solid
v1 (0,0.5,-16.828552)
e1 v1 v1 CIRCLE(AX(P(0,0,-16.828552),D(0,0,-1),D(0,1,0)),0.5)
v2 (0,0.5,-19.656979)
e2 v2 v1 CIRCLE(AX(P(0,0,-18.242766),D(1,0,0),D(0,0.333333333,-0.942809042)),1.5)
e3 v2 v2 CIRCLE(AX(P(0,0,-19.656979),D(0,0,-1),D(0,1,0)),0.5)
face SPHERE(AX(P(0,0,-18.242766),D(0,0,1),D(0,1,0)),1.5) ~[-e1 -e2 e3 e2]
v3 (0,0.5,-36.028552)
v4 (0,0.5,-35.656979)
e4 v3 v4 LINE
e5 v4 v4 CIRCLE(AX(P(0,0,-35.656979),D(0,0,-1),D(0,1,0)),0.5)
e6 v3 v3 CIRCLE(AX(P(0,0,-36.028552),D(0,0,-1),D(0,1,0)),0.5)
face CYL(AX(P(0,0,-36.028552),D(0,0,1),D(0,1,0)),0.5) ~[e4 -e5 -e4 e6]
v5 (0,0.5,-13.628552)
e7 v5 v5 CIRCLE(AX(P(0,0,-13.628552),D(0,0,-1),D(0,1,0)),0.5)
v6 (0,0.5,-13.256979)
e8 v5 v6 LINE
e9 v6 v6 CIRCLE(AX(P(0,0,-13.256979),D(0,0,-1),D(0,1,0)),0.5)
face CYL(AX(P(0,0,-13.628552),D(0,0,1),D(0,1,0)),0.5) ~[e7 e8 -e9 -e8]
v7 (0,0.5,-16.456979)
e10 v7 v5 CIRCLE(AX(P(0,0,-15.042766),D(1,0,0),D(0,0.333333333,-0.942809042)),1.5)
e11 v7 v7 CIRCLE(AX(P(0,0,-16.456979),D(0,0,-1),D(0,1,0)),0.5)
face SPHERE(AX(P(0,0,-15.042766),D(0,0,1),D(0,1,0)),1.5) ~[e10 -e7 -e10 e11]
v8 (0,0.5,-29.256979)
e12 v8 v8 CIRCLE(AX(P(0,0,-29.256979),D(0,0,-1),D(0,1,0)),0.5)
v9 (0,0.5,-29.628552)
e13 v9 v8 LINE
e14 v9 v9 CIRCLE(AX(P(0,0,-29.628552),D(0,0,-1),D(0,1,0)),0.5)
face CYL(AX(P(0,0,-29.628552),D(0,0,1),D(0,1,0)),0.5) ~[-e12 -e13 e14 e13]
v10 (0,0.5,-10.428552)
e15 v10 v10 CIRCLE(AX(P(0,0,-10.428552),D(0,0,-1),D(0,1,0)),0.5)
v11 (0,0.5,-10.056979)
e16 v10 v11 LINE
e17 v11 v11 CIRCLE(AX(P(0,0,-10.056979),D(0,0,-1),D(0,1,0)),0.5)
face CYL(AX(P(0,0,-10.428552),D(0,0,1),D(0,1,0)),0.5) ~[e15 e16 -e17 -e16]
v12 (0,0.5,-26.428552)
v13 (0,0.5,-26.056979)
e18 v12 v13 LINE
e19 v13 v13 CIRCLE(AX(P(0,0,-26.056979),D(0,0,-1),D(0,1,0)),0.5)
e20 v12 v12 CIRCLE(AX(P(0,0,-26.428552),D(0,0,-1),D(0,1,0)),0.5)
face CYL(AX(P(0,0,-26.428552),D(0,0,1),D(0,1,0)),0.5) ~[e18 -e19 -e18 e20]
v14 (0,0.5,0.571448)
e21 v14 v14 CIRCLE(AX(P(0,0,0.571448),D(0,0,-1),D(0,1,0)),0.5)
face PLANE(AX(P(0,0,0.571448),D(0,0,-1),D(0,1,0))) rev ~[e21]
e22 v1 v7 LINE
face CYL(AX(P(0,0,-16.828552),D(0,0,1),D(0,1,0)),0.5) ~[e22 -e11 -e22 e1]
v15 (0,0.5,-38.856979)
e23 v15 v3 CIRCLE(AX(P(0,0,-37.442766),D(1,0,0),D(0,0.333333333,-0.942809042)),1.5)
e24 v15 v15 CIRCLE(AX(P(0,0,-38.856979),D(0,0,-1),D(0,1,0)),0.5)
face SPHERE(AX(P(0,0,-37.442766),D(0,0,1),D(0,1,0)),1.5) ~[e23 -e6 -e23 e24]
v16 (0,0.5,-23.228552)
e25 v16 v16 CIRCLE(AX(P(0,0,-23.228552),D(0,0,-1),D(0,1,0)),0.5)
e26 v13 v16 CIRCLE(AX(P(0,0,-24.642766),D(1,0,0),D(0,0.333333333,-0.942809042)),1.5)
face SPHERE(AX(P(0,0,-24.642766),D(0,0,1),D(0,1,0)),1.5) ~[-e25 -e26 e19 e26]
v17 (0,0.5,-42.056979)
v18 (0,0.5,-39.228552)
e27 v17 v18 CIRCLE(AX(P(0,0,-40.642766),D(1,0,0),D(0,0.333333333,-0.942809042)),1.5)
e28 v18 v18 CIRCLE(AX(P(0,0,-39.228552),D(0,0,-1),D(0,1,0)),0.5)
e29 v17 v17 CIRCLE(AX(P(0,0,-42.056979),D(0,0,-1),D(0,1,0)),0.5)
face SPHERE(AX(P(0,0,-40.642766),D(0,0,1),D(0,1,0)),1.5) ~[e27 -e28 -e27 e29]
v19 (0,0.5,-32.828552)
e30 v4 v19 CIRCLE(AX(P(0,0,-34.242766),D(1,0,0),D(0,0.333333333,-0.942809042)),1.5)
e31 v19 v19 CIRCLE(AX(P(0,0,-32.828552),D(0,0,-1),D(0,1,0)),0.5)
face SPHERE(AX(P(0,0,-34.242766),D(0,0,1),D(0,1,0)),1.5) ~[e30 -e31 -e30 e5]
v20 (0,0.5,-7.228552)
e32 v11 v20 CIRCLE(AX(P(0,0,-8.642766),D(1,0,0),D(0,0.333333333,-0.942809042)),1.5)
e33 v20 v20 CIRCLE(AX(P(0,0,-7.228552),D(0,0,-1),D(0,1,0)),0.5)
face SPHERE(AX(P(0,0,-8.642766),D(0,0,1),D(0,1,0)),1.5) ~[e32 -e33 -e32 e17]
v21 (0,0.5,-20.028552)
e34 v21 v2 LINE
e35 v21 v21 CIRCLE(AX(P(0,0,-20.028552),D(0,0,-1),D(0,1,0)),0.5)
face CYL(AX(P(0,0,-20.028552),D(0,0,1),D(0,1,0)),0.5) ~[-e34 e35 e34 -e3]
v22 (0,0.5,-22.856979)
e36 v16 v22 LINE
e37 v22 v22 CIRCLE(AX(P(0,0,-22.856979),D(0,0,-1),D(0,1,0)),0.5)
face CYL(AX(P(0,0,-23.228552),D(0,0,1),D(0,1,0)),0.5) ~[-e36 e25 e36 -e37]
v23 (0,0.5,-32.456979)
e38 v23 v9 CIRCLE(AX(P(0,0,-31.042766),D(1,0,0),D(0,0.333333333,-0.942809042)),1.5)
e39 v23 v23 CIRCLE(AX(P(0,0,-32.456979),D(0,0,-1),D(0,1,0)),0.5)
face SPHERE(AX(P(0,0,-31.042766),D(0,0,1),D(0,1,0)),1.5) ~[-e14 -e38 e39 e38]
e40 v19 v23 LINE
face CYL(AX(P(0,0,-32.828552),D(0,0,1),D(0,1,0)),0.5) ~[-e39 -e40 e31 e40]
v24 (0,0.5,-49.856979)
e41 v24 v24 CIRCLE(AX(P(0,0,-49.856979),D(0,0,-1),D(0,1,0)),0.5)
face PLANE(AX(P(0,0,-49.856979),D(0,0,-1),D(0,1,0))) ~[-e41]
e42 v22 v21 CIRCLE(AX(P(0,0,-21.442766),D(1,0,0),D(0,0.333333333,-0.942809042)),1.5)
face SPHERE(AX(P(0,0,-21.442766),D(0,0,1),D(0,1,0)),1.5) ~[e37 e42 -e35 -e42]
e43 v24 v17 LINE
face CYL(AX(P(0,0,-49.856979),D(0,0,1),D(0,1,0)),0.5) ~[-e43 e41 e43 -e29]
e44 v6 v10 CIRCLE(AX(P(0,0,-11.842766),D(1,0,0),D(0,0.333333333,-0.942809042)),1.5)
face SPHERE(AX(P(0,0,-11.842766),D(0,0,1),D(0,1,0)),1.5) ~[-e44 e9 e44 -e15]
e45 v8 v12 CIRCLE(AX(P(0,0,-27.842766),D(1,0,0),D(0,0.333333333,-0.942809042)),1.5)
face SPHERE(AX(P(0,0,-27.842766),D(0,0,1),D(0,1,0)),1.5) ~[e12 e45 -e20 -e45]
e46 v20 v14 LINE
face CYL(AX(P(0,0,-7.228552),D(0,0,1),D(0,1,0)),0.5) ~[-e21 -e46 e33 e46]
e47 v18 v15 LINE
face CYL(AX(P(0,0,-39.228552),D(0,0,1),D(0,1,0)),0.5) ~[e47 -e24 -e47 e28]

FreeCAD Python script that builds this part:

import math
import FreeCAD as App
import Part
import Sketcher

doc = App.newDocument("Part")
body = doc.addObject("PartDesign::Body", "Body")

sketch1 = body.newObject("Sketcher::SketchObject", "Sketch")
sketch1.AttachmentSupport = (doc.getObject("YZ_Plane"), [""])
sketch1.MapMode = "FlatFace"
sketch1.addGeometry(Part.LineSegment(App.Vector(0.5, -10.428552, 0), App.Vector(0.5, -10.056979, 0)), False)
sketch1.addGeometry(Part.ArcOfCircle(Part.Circle(App.Vector(0, -8.642766, 0), App.Vector(0, 0, 1), 1.5), math.radians(-70.528779), math.radians(70.528779)), False)
sketch1.addGeometry(Part.LineSegment(App.Vector(0.5, -7.228552, 0), App.Vector(0.5, 0.571448, 0)), False)
sketch1.addGeometry(Part.LineSegment(App.Vector(0.5, 0.571448, 0), App.Vector(0, 0.571448, 0)), False)
sketch1.addGeometry(Part.LineSegment(App.Vector(0, 0.571448, 0), App.Vector(0, -49.856979, 0)), False)
sketch1.addGeometry(Part.LineSegment(App.Vector(0, -49.856979, 0), App.Vector(0.5, -49.856979, 0)), False)
sketch1.addGeometry(Part.LineSegment(App.Vector(0.5, -49.856979, 0), App.Vector(0.5, -42.056979, 0)), False)
sketch1.addGeometry(Part.ArcOfCircle(Part.Circle(App.Vector(0, -40.642766, 0), App.Vector(0, 0, 1), 1.5), math.radians(-70.528779), math.radians(70.528779)), False)
sketch1.addGeometry(Part.LineSegment(App.Vector(0.5, -39.228552, 0), App.Vector(0.5, -38.856979, 0)), False)
sketch1.addGeometry(Part.ArcOfCircle(Part.Circle(App.Vector(0, -37.442766, 0), App.Vector(0, 0, 1), 1.5), math.radians(-70.528779), math.radians(70.528779)), False)
sketch1.addGeometry(Part.LineSegment(App.Vector(0.5, -36.028552, 0), App.Vector(0.5, -35.656979, 0)), False)
sketch1.addGeometry(Part.ArcOfCircle(Part.Circle(App.Vector(0, -34.242766, 0), App.Vector(0, 0, 1), 1.5), math.radians(-70.528779), math.radians(70.528779)), False)
sketch1.addGeometry(Part.LineSegment(App.Vector(0.5, -32.828552, 0), App.Vector(0.5, -32.456979, 0)), False)
sketch1.addGeometry(Part.ArcOfCircle(Part.Circle(App.Vector(0, -31.042766, 0), App.Vector(0, 0, 1), 1.5), math.radians(-70.528779), math.radians(70.528779)), False)
sketch1.addGeometry(Part.LineSegment(App.Vector(0.5, -29.628552, 0), App.Vector(0.5, -29.256979, 0)), False)
sketch1.addGeometry(Part.ArcOfCircle(Part.Circle(App.Vector(0, -27.842766, 0), App.Vector(0, 0, 1), 1.5), math.radians(-70.528779), math.radians(70.528779)), False)
sketch1.addGeometry(Part.LineSegment(App.Vector(0.5, -26.428552, 0), App.Vector(0.5, -26.056979, 0)), False)
sketch1.addGeometry(Part.ArcOfCircle(Part.Circle(App.Vector(0, -24.642766, 0), App.Vector(0, 0, 1), 1.5), math.radians(-70.528779), math.radians(70.528779)), False)
sketch1.addGeometry(Part.LineSegment(App.Vector(0.5, -23.228552, 0), App.Vector(0.5, -22.856979, 0)), False)
sketch1.addGeometry(Part.ArcOfCircle(Part.Circle(App.Vector(0, -21.442766, 0), App.Vector(0, 0, 1), 1.5), math.radians(-70.528779), math.radians(70.528779)), False)
sketch1.addGeometry(Part.LineSegment(App.Vector(0.5, -20.028552, 0), App.Vector(0.5, -19.656979, 0)), False)
sketch1.addGeometry(Part.ArcOfCircle(Part.Circle(App.Vector(0, -18.242766, 0), App.Vector(0, 0, 1), 1.5), math.radians(-70.528779), math.radians(70.528779)), False)
sketch1.addGeometry(Part.LineSegment(App.Vector(0.5, -16.828552, 0), App.Vector(0.5, -16.456979, 0)), False)
sketch1.addGeometry(Part.ArcOfCircle(Part.Circle(App.Vector(0, -15.042766, 0), App.Vector(0, 0, 1), 1.5), math.radians(-70.528779), math.radians(70.528779)), False)
sketch1.addGeometry(Part.LineSegment(App.Vector(0.5, -13.628552, 0), App.Vector(0.5, -13.256979, 0)), False)
sketch1.addGeometry(Part.ArcOfCircle(Part.Circle(App.Vector(0, -11.842766, 0), App.Vector(0, 0, 1), 1.5), math.radians(-70.528779), math.radians(70.528779)), False)
sketch1.addConstraint(Sketcher.Constraint("Coincident", 0, 2, 1, 1))
sketch1.addConstraint(Sketcher.Constraint("Coincident", 1, 2, 2, 1))
sketch1.addConstraint(Sketcher.Constraint("Coincident", 2, 2, 3, 1))
sketch1.addConstraint(Sketcher.Constraint("Coincident", 3, 2, 4, 1))
sketch1.addConstraint(Sketcher.Constraint("Coincident", 4, 2, 5, 1))
sketch1.addConstraint(Sketcher.Constraint("Coincident", 5, 2, 6, 1))
sketch1.addConstraint(Sketcher.Constraint("Coincident", 6, 2, 7, 1))
sketch1.addConstraint(Sketcher.Constraint("Coincident", 7, 2, 8, 1))
sketch1.addConstraint(Sketcher.Constraint("Coincident", 8, 2, 9, 1))
sketch1.addConstraint(Sketcher.Constraint("Coincident", 9, 2, 10, 1))
sketch1.addConstraint(Sketcher.Constraint("Coincident", 10, 2, 11, 1))
sketch1.addConstraint(Sketcher.Constraint("Coincident", 11, 2, 12, 1))
sketch1.addConstraint(Sketcher.Constraint("Coincident", 12, 2, 13, 1))
sketch1.addConstraint(Sketcher.Constraint("Coincident", 13, 2, 14, 1))
sketch1.addConstraint(Sketcher.Constraint("Coincident", 14, 2, 15, 1))
sketch1.addConstraint(Sketcher.Constraint("Coincident", 15, 2, 16, 1))
sketch1.addConstraint(Sketcher.Constraint("Coincident", 16, 2, 17, 1))
sketch1.addConstraint(Sketcher.Constraint("Coincident", 17, 2, 18, 1))
sketch1.addConstraint(Sketcher.Constraint("Coincident", 18, 2, 19, 1))
sketch1.addConstraint(Sketcher.Constraint("Coincident", 19, 2, 20, 1))
sketch1.addConstraint(Sketcher.Constraint("Coincident", 20, 2, 21, 1))
sketch1.addConstraint(Sketcher.Constraint("Coincident", 21, 2, 22, 1))
sketch1.addConstraint(Sketcher.Constraint("Coincident", 22, 2, 23, 1))
sketch1.addConstraint(Sketcher.Constraint("Coincident", 23, 2, 24, 1))
sketch1.addConstraint(Sketcher.Constraint("Coincident", 24, 2, 25, 1))
sketch1.addConstraint(Sketcher.Constraint("Coincident", 25, 2, 0, 1))
sketch1.addConstraint(Sketcher.Constraint("Vertical", 0))
sketch1.addConstraint(Sketcher.Constraint("Vertical", 2))
sketch1.addConstraint(Sketcher.Constraint("Horizontal", 3))
sketch1.addConstraint(Sketcher.Constraint("Vertical", 4))
sketch1.addConstraint(Sketcher.Constraint("Horizontal", 5))
sketch1.addConstraint(Sketcher.Constraint("Vertical", 6))
sketch1.addConstraint(Sketcher.Constraint("Vertical", 8))
sketch1.addConstraint(Sketcher.Constraint("Vertical", 10))
sketch1.addConstraint(Sketcher.Constraint("Vertical", 12))
sketch1.addConstraint(Sketcher.Constraint("Vertical", 14))
sketch1.addConstraint(Sketcher.Constraint("Vertical", 16))
sketch1.addConstraint(Sketcher.Constraint("Vertical", 18))
sketch1.addConstraint(Sketcher.Constraint("Vertical", 20))
sketch1.addConstraint(Sketcher.Constraint("Vertical", 22))
sketch1.addConstraint(Sketcher.Constraint("Vertical", 24))
sketch1.addConstraint(Sketcher.Constraint("Equal", 1, 7))
sketch1.addConstraint(Sketcher.Constraint("Equal", 7, 9))
sketch1.addConstraint(Sketcher.Constraint("Equal", 9, 11))
sketch1.addConstraint(Sketcher.Constraint("Equal", 11, 13))
sketch1.addConstraint(Sketcher.Constraint("Equal", 13, 15))
sketch1.addConstraint(Sketcher.Constraint("Equal", 15, 17))
sketch1.addConstraint(Sketcher.Constraint("Equal", 17, 19))
sketch1.addConstraint(Sketcher.Constraint("Equal", 19, 21))
sketch1.addConstraint(Sketcher.Constraint("Equal", 21, 23))
sketch1.addConstraint(Sketcher.Constraint("Equal", 23, 25))
sketch1.addConstraint(Sketcher.Constraint("PointOnObject", 1, 3, -2))
sketch1.addConstraint(Sketcher.Constraint("PointOnObject", 7, 3, -2))
sketch1.addConstraint(Sketcher.Constraint("PointOnObject", 9, 3, -2))
sketch1.addConstraint(Sketcher.Constraint("PointOnObject", 11, 3, -2))
sketch1.addConstraint(Sketcher.Constraint("PointOnObject", 13, 3, -2))
sketch1.addConstraint(Sketcher.Constraint("PointOnObject", 15, 3, -2))
sketch1.addConstraint(Sketcher.Constraint("PointOnObject", 17, 3, -2))
sketch1.addConstraint(Sketcher.Constraint("PointOnObject", 19, 3, -2))
sketch1.addConstraint(Sketcher.Constraint("PointOnObject", 21, 3, -2))
sketch1.addConstraint(Sketcher.Constraint("PointOnObject", 23, 3, -2))
sketch1.addConstraint(Sketcher.Constraint("PointOnObject", 25, 3, -2))
sketch1.addConstraint(Sketcher.Constraint("PointOnObject", 3, 2, -2))
sketch1.addConstraint(Sketcher.Constraint("Vertical", 0, 2, 1, 2))
sketch1.addConstraint(Sketcher.Constraint("Vertical", 2, 2, 5, 2))
sketch1.addConstraint(Sketcher.Constraint("Vertical", 6, 2, 7, 2))
sketch1.addConstraint(Sketcher.Constraint("Vertical", 8, 2, 9, 2))
sketch1.addConstraint(Sketcher.Constraint("Vertical", 10, 2, 11, 2))
sketch1.addConstraint(Sketcher.Constraint("Vertical", 12, 2, 13, 2))
sketch1.addConstraint(Sketcher.Constraint("Vertical", 14, 2, 15, 2))
sketch1.addConstraint(Sketcher.Constraint("Vertical", 16, 2, 17, 2))
sketch1.addConstraint(Sketcher.Constraint("Vertical", 18, 2, 19, 2))
sketch1.addConstraint(Sketcher.Constraint("Vertical", 20, 2, 21, 2))
sketch1.addConstraint(Sketcher.Constraint("Vertical", 22, 2, 23, 2))
sketch1.addConstraint(Sketcher.Constraint("Equal", 2, 6))
sketch1.addConstraint(Sketcher.Constraint("Equal", 0, 8))
sketch1.addConstraint(Sketcher.Constraint("Equal", 8, 10))
sketch1.addConstraint(Sketcher.Constraint("Equal", 10, 12))
sketch1.addConstraint(Sketcher.Constraint("Equal", 12, 14))
sketch1.addConstraint(Sketcher.Constraint("Equal", 14, 16))
sketch1.addConstraint(Sketcher.Constraint("Equal", 16, 18))
sketch1.addConstraint(Sketcher.Constraint("Equal", 18, 20))
sketch1.addConstraint(Sketcher.Constraint("Equal", 20, 22))
sketch1.addConstraint(Sketcher.Constraint("Equal", 22, 24))
sketch1.addConstraint(Sketcher.Constraint("Radius", 1, 1.5))
sketch1.addConstraint(Sketcher.Constraint("DistanceX", 3, 2, 3, 1, 0.5))
sketch1.addConstraint(Sketcher.Constraint("DistanceY", 2, 1, 2, 2, 7.8))
sketch1.addConstraint(Sketcher.Constraint("DistanceY", 7, 3, 1, 3, 32.0))
sketch1.addConstraint(Sketcher.Constraint("DistanceY", 0, 2, -1, 1, 10.056979))
revolution = body.newObject("PartDesign::Revolution", "Revolution")
revolution.Profile = sketch1
revolution.ReferenceAxis = (sketch1, ["V_Axis"])
revolution.Angle = 360

doc.recompute()
